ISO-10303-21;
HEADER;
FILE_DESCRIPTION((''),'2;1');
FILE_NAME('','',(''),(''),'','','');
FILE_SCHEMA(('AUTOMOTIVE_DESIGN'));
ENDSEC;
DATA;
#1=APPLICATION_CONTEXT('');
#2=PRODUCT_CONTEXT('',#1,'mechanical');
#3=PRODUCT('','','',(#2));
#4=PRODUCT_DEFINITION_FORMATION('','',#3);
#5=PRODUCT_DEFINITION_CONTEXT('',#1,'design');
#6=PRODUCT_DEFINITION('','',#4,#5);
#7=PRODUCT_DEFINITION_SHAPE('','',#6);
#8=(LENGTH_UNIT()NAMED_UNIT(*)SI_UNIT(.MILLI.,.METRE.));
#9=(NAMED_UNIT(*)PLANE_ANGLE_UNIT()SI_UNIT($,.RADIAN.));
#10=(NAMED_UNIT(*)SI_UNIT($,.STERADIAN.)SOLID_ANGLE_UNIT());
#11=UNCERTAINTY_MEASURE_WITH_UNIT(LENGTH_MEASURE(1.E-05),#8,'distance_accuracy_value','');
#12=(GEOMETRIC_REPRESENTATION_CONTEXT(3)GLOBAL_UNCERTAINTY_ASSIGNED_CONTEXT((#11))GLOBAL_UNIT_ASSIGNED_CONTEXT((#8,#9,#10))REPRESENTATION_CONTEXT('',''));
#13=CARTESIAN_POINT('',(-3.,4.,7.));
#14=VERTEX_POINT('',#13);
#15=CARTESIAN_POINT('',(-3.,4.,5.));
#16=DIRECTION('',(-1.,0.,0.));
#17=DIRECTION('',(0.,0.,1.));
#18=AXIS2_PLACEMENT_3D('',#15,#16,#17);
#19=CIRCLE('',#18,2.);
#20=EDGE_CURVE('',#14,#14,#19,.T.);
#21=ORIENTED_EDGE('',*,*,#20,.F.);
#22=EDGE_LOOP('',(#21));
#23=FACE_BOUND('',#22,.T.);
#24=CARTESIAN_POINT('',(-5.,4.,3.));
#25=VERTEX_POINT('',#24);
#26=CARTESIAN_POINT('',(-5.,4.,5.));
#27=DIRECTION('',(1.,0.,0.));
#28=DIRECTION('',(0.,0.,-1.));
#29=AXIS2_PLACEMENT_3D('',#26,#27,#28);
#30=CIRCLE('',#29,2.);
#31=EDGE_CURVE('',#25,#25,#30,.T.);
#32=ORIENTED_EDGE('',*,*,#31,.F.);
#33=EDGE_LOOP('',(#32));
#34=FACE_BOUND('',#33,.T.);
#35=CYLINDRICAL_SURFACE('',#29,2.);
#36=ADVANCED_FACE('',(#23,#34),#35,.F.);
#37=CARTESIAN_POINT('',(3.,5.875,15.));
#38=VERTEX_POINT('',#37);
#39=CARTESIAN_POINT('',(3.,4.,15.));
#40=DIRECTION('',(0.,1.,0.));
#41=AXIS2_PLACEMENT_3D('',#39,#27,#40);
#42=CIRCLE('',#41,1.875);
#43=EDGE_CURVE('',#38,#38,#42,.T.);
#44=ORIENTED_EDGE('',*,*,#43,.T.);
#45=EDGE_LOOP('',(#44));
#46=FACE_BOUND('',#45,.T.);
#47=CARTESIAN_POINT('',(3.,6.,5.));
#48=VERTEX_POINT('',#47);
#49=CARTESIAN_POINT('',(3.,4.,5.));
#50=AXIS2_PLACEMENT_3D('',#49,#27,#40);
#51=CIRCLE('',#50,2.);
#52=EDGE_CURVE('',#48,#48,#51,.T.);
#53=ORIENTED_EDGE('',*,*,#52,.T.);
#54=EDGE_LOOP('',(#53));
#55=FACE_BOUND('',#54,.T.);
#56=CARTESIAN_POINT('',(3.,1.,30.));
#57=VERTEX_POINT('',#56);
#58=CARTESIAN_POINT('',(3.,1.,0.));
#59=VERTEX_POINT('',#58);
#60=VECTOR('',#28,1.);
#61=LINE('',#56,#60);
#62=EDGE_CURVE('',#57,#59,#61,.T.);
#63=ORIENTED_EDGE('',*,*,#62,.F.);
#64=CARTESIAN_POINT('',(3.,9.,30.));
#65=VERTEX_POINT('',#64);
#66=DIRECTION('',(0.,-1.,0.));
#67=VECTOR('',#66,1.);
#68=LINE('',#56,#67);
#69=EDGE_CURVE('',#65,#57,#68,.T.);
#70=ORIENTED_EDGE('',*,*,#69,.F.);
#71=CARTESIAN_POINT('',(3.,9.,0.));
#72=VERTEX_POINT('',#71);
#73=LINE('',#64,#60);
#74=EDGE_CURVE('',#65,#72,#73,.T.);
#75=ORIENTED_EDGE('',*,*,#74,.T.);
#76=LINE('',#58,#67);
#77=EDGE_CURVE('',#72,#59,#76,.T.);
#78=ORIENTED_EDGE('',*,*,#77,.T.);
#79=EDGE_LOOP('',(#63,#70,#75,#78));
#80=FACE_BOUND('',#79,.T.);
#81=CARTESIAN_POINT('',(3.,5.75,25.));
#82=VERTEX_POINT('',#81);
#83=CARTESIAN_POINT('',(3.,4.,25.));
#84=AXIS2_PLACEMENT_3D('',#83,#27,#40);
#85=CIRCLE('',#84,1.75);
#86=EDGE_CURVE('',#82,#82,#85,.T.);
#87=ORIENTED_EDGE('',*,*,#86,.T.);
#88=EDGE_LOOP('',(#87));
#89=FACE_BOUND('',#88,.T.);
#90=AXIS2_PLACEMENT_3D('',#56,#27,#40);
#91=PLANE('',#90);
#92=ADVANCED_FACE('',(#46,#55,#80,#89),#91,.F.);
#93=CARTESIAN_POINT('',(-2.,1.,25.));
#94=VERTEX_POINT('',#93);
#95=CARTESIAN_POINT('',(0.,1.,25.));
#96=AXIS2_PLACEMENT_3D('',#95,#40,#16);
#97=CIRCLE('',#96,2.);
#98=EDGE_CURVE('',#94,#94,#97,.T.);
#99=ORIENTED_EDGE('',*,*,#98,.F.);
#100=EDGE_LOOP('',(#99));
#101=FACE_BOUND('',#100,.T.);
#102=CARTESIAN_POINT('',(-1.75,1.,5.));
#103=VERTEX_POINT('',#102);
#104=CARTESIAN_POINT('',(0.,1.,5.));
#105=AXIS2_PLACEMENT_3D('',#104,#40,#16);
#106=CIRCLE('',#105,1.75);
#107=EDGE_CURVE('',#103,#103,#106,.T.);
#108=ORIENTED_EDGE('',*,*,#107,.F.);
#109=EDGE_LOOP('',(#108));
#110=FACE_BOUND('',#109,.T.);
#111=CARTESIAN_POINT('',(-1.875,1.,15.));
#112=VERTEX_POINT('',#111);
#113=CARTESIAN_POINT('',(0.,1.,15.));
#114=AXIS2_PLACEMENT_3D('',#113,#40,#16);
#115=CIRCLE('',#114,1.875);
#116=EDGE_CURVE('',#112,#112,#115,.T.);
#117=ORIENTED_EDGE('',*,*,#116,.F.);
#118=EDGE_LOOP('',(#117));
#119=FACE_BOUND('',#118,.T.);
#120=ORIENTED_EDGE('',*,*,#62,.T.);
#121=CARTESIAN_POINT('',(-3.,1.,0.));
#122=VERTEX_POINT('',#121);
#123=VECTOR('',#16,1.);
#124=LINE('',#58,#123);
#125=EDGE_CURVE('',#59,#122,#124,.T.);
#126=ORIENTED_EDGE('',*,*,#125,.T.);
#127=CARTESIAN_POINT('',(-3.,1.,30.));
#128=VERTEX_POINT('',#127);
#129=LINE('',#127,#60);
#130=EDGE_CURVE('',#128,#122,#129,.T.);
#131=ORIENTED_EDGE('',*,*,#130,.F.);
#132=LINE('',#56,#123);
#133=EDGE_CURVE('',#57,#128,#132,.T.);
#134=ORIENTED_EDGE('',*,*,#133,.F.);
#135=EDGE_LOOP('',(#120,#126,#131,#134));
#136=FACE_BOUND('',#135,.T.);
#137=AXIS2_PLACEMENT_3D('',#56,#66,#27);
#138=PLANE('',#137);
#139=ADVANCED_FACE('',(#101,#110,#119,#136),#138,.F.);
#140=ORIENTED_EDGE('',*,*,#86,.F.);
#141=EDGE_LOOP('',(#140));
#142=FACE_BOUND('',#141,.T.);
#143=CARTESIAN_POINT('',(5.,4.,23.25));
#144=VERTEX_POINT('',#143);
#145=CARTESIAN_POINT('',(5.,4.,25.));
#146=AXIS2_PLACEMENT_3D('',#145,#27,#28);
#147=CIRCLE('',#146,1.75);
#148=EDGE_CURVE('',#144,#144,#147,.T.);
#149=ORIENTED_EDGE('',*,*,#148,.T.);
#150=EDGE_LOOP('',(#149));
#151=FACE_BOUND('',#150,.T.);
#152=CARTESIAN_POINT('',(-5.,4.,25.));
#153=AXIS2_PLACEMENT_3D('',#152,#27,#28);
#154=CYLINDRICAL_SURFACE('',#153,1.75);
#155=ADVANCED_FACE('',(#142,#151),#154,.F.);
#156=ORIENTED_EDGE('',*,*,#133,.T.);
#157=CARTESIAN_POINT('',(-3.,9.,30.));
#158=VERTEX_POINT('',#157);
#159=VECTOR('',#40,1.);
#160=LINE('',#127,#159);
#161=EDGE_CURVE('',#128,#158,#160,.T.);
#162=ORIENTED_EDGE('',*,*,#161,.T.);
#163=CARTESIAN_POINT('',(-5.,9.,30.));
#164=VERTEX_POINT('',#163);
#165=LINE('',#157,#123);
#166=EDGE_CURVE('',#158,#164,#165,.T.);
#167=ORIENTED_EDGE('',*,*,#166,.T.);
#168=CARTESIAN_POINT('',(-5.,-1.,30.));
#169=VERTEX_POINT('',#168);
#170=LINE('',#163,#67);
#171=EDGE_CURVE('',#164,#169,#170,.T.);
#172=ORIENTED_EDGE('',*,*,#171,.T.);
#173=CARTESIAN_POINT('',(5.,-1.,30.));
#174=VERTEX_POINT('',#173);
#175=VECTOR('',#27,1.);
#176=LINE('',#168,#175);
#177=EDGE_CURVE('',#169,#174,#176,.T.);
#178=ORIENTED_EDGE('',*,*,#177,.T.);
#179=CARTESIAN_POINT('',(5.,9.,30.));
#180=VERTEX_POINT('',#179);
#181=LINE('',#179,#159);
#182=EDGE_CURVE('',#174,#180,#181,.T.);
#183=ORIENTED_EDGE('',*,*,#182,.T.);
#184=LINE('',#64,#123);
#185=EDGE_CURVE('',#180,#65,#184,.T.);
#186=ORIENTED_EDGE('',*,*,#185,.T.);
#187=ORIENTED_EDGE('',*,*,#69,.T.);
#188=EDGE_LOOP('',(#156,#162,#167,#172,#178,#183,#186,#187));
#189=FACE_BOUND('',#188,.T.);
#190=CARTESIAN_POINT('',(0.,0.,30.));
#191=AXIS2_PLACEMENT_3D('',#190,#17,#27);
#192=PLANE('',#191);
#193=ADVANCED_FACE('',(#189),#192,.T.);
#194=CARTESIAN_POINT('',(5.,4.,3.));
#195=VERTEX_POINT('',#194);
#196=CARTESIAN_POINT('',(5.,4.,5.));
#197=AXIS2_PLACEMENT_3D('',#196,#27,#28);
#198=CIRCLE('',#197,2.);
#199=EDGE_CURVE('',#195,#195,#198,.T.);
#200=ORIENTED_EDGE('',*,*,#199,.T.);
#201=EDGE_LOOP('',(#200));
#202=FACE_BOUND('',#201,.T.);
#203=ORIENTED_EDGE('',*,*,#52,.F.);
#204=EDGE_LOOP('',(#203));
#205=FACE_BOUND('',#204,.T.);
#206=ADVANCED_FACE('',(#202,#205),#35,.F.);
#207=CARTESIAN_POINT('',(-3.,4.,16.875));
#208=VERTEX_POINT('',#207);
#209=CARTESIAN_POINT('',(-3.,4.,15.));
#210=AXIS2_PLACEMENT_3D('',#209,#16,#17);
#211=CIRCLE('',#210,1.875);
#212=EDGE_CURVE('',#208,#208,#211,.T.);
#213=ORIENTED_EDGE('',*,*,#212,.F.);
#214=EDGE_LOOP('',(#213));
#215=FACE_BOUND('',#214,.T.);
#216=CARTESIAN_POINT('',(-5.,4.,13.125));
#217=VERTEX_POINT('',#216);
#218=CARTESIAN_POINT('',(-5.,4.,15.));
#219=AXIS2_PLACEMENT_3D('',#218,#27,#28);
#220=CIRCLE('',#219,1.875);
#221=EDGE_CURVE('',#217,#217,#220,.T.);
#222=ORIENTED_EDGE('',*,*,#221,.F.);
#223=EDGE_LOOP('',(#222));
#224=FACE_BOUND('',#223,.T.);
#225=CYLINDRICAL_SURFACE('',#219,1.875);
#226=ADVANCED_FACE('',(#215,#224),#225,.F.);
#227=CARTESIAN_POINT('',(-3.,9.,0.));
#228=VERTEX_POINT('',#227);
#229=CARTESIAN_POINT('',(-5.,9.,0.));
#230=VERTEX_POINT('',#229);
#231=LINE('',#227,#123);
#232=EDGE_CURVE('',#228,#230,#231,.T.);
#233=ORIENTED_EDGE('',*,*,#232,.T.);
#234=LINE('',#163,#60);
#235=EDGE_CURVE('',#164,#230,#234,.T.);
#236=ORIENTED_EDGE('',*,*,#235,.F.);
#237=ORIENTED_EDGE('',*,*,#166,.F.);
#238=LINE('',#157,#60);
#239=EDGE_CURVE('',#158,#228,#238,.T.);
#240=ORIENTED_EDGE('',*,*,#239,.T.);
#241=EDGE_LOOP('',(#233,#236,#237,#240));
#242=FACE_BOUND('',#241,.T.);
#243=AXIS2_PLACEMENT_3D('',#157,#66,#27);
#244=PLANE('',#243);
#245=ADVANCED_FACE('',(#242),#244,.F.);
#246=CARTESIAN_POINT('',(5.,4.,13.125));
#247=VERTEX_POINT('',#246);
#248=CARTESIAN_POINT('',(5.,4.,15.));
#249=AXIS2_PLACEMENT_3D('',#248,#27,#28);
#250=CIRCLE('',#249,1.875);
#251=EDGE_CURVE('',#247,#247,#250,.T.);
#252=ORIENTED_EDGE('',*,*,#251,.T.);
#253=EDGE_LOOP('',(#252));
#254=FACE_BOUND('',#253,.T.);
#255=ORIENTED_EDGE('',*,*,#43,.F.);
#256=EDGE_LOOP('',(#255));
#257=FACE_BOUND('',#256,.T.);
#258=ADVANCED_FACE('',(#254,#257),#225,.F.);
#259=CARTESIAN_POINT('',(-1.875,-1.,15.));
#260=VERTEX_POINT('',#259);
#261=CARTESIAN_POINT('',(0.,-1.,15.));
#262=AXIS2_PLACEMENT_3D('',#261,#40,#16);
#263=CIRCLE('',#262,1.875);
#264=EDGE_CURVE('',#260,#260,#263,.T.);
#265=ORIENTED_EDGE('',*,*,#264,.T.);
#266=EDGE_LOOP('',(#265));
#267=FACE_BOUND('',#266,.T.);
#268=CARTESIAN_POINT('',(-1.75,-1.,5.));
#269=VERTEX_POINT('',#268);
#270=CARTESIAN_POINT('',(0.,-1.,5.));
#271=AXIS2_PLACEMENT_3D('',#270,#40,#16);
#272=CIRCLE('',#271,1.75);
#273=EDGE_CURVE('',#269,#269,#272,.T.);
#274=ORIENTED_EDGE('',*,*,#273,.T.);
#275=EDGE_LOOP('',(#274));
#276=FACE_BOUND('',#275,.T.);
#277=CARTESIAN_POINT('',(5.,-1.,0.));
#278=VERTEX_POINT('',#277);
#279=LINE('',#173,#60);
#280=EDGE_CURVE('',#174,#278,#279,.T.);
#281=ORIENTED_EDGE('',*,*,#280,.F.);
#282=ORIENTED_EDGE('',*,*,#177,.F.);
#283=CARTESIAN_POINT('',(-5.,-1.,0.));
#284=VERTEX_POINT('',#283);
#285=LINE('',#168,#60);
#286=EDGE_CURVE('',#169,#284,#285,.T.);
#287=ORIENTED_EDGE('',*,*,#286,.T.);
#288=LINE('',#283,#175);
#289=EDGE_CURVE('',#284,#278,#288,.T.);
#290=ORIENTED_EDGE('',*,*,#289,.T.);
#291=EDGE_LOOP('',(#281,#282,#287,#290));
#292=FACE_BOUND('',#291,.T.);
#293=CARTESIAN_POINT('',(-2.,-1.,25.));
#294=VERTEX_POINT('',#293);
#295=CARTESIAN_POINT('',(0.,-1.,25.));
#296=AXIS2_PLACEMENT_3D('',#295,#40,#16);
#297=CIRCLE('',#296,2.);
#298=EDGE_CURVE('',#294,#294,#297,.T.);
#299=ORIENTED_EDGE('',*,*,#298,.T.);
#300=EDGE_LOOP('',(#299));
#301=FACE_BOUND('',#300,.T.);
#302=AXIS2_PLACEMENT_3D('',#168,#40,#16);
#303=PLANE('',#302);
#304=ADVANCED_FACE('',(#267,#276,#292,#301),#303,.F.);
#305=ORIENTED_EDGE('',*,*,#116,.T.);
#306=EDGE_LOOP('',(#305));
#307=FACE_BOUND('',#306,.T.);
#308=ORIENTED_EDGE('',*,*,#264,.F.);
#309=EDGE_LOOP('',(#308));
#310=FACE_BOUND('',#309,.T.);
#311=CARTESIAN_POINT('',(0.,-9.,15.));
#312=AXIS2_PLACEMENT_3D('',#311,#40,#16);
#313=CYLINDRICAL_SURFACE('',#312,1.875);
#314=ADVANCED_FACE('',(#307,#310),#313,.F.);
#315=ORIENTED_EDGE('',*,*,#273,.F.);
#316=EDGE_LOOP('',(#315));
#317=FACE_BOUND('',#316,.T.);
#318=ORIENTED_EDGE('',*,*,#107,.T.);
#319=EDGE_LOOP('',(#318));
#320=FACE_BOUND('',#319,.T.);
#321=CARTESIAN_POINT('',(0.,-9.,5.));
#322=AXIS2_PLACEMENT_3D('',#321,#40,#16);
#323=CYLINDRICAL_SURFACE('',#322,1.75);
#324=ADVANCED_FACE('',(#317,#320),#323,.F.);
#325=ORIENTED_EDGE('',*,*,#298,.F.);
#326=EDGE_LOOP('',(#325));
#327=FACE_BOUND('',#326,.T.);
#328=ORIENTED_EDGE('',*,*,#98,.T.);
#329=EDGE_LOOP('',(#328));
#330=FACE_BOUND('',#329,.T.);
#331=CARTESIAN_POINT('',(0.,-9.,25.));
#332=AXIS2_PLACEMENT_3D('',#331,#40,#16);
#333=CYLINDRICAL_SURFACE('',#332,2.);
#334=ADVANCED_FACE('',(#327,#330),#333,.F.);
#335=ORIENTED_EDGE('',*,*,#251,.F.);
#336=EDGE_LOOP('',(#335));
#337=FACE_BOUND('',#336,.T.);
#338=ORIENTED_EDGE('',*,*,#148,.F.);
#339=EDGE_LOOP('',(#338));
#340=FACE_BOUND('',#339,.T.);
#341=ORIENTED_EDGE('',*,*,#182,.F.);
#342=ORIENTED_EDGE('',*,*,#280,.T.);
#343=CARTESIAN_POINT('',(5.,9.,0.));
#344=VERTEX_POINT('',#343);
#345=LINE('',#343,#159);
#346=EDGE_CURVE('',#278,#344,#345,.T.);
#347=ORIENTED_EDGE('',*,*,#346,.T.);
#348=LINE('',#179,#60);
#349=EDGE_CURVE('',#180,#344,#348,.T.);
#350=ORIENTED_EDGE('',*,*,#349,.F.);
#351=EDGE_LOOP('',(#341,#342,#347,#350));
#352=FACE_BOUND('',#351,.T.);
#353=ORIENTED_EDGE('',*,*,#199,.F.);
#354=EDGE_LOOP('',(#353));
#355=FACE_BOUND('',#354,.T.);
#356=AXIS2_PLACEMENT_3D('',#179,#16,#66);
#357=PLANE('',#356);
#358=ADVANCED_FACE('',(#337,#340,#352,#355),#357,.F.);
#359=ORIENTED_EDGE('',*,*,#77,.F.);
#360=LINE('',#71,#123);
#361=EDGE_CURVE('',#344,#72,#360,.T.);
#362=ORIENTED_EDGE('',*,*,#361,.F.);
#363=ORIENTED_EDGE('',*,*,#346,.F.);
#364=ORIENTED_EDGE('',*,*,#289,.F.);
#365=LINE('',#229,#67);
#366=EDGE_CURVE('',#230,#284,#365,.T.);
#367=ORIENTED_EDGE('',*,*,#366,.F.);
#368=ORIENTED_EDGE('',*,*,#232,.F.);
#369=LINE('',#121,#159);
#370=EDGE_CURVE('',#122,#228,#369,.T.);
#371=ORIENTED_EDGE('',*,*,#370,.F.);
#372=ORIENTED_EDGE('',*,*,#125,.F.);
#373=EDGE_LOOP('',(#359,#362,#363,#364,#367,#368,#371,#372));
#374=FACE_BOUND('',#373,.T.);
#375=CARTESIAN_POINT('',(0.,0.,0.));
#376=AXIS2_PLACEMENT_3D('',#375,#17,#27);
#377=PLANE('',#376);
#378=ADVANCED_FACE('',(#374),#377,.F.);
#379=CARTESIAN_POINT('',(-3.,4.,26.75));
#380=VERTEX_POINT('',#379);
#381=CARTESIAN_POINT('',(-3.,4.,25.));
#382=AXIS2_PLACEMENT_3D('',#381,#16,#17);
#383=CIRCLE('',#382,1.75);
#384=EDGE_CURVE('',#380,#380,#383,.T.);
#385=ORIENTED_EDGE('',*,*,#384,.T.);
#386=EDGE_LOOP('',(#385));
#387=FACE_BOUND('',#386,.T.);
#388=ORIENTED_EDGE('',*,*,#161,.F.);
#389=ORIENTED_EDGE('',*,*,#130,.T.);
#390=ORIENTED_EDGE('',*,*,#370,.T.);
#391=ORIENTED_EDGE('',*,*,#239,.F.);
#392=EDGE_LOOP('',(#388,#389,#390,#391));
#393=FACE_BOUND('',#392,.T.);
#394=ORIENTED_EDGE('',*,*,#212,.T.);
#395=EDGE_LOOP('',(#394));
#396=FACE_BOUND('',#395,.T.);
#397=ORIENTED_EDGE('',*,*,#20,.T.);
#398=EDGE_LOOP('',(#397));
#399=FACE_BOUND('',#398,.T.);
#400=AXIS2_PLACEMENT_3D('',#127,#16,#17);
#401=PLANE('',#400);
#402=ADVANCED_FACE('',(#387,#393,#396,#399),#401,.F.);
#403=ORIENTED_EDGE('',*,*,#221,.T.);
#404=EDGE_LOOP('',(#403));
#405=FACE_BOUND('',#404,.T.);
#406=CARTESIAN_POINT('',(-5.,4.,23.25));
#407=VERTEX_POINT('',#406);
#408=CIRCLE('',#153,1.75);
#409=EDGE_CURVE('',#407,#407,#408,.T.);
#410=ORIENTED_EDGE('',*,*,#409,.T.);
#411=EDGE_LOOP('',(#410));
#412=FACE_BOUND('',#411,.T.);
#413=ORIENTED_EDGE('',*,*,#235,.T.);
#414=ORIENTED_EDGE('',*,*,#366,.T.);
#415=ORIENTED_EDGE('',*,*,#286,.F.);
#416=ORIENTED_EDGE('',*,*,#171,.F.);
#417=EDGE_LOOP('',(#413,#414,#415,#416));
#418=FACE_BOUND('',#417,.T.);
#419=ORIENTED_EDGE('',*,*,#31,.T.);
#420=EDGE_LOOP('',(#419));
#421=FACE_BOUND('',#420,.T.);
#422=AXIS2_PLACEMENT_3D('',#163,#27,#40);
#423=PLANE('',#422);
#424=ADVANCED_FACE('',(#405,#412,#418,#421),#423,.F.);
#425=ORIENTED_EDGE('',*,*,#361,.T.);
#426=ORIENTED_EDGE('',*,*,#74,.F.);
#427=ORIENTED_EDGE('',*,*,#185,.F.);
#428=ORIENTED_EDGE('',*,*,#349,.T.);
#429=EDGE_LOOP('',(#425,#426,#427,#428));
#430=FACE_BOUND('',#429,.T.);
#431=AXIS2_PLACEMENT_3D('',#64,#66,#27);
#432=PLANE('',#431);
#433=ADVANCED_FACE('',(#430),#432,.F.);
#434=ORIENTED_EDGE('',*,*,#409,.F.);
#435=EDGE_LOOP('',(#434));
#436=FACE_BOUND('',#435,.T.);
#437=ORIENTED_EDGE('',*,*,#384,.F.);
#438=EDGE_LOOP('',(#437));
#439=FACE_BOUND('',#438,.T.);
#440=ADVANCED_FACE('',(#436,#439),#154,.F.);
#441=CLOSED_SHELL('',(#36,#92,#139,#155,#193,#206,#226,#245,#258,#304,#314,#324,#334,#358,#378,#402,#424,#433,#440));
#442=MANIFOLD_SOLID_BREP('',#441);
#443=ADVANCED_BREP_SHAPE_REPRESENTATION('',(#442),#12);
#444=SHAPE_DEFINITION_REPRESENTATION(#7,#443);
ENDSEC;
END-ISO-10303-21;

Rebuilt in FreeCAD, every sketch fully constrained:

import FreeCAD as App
import Part
import Sketcher

V = App.Vector
Q = App.Units.Quantity


def add_polygon(sketch, points):
    """Adds a closed chain of lines whose ends are joined by coincident constraints."""
    first, n = sketch.GeometryCount, len(points)
    for a, b in zip(points, points[1:] + points[:1]):
        sketch.addGeometry(Part.LineSegment(App.Vector(*a, 0), App.Vector(*b, 0)), False)
    for i in range(n):
        sketch.addConstraint(Sketcher.Constraint("Coincident", first + i, 2, first + (i + 1) % n, 1))

doc = App.newDocument("Part")
body = doc.addObject("PartDesign::Body", "Body")

# Sketch on XY plane
sketch1 = body.newObject("Sketcher::SketchObject", "Sketch")
sketch1.AttachmentSupport = (doc.getObject("XY_Plane"), [""])
sketch1.MapMode = "FlatFace"
add_polygon(sketch1, [(3, 1), (-3, 1), (-3, 9), (-5, 9), (-5, -1), (5, -1), (5, 9), (3, 9)])  # lines 0-7
sketch1.addConstraint([
    Sketcher.Constraint("Horizontal", 0),
    Sketcher.Constraint("Vertical", 1),
    Sketcher.Constraint("Horizontal", 2),
    Sketcher.Constraint("Vertical", 3),
    Sketcher.Constraint("Horizontal", 4),
    Sketcher.Constraint("Vertical", 5),
    Sketcher.Constraint("Horizontal", 6),
    Sketcher.Constraint("Vertical", 7),
    Sketcher.Constraint("Symmetric", 2, 2, 5, 2, -2),
    Sketcher.Constraint("Equal", 2, 6),
    Sketcher.Constraint("Equal", 4, 3),
    Sketcher.Constraint("DistanceX", 0, 2, 0, 1, Q("6 mm")),
    Sketcher.Constraint("DistanceX", 2, 2, 2, 1, Q("2 mm")),
    Sketcher.Constraint("DistanceY", 1, 1, 1, 2, Q("8 mm")),
    Sketcher.Constraint("DistanceY", -1, 1, 0, 2, Q("1 mm")),
])
pad1 = body.newObject("PartDesign::Pad", "Pad")
pad1.Profile = sketch1
pad1.Length = 30

# Sketch on YZ plane
sketch2 = body.newObject("Sketcher::SketchObject", "Sketch001")
sketch2.AttachmentSupport = (doc.getObject("YZ_Plane"), [""])
sketch2.MapMode = "FlatFace"
sketch2.AttachmentOffset = App.Placement(V(0, 0, -3), App.Rotation())
sketch2.addGeometry([
    Part.Circle(V(4, 25, 0), V(0, 0, 1), 1.8),
    Part.Circle(V(4, 5, 0), V(0, 0, 1), 2),
    Part.Circle(V(4, 15, 0), V(0, 0, 1), 1.9),
], False)
sketch2.addConstraint([
    Sketcher.Constraint("Vertical", 0, 3, 1, 3),
    Sketcher.Constraint("Vertical", 1, 3, 2, 3),
    Sketcher.Constraint("Diameter", 1, Q("4 mm")),
    Sketcher.Constraint("Diameter", 0, Q("3.5 mm")),
    Sketcher.Constraint("Diameter", 2, Q("3.75 mm")),
    Sketcher.Constraint("DistanceX", -1, 1, 0, 3, Q("4 mm")),
    Sketcher.Constraint("DistanceY", -1, 1, 0, 3, Q("25 mm")),
    Sketcher.Constraint("DistanceY", -1, 1, 1, 3, Q("5 mm")),
    Sketcher.Constraint("DistanceY", -1, 1, 2, 3, Q("15 mm")),
])
pocket1 = body.newObject("PartDesign::Pocket", "Pocket")
pocket1.Profile = sketch2
pocket1.Type = "ThroughAll"
pocket1.Midplane = True

# Sketch on XZ plane
sketch3 = body.newObject("Sketcher::SketchObject", "Sketch002")
sketch3.AttachmentSupport = (doc.getObject("XZ_Plane"), [""])
sketch3.MapMode = "FlatFace"
sketch3.AttachmentOffset = App.Placement(V(0, 0, -1), App.Rotation())
sketch3.addGeometry([
    Part.Circle(V(0, 5, 0), V(0, 0, 1), 1.8),
    Part.Circle(V(0, 15, 0), V(0, 0, 1), 1.9),
    Part.Circle(V(0, 25, 0), V(0, 0, 1), 2),
], False)
sketch3.addConstraint([
    Sketcher.Constraint("PointOnObject", 0, 3, -2),
    Sketcher.Constraint("PointOnObject", 1, 3, -2),
    Sketcher.Constraint("PointOnObject", 2, 3, -2),
    Sketcher.Constraint("Diameter", 2, Q("4 mm")),
    Sketcher.Constraint("Diameter", 0, Q("3.5 mm")),
    Sketcher.Constraint("Diameter", 1, Q("3.75 mm")),
    Sketcher.Constraint("DistanceY", -1, 1, 0, 3, Q("5 mm")),
    Sketcher.Constraint("DistanceY", -1, 1, 1, 3, Q("15 mm")),
    Sketcher.Constraint("DistanceY", -1, 1, 2, 3, Q("25 mm")),
])
pocket2 = body.newObject("PartDesign::Pocket", "Pocket001")
pocket2.Profile = sketch3
pocket2.Length = 10
pocket2.Reversed = True

doc.recompute()
